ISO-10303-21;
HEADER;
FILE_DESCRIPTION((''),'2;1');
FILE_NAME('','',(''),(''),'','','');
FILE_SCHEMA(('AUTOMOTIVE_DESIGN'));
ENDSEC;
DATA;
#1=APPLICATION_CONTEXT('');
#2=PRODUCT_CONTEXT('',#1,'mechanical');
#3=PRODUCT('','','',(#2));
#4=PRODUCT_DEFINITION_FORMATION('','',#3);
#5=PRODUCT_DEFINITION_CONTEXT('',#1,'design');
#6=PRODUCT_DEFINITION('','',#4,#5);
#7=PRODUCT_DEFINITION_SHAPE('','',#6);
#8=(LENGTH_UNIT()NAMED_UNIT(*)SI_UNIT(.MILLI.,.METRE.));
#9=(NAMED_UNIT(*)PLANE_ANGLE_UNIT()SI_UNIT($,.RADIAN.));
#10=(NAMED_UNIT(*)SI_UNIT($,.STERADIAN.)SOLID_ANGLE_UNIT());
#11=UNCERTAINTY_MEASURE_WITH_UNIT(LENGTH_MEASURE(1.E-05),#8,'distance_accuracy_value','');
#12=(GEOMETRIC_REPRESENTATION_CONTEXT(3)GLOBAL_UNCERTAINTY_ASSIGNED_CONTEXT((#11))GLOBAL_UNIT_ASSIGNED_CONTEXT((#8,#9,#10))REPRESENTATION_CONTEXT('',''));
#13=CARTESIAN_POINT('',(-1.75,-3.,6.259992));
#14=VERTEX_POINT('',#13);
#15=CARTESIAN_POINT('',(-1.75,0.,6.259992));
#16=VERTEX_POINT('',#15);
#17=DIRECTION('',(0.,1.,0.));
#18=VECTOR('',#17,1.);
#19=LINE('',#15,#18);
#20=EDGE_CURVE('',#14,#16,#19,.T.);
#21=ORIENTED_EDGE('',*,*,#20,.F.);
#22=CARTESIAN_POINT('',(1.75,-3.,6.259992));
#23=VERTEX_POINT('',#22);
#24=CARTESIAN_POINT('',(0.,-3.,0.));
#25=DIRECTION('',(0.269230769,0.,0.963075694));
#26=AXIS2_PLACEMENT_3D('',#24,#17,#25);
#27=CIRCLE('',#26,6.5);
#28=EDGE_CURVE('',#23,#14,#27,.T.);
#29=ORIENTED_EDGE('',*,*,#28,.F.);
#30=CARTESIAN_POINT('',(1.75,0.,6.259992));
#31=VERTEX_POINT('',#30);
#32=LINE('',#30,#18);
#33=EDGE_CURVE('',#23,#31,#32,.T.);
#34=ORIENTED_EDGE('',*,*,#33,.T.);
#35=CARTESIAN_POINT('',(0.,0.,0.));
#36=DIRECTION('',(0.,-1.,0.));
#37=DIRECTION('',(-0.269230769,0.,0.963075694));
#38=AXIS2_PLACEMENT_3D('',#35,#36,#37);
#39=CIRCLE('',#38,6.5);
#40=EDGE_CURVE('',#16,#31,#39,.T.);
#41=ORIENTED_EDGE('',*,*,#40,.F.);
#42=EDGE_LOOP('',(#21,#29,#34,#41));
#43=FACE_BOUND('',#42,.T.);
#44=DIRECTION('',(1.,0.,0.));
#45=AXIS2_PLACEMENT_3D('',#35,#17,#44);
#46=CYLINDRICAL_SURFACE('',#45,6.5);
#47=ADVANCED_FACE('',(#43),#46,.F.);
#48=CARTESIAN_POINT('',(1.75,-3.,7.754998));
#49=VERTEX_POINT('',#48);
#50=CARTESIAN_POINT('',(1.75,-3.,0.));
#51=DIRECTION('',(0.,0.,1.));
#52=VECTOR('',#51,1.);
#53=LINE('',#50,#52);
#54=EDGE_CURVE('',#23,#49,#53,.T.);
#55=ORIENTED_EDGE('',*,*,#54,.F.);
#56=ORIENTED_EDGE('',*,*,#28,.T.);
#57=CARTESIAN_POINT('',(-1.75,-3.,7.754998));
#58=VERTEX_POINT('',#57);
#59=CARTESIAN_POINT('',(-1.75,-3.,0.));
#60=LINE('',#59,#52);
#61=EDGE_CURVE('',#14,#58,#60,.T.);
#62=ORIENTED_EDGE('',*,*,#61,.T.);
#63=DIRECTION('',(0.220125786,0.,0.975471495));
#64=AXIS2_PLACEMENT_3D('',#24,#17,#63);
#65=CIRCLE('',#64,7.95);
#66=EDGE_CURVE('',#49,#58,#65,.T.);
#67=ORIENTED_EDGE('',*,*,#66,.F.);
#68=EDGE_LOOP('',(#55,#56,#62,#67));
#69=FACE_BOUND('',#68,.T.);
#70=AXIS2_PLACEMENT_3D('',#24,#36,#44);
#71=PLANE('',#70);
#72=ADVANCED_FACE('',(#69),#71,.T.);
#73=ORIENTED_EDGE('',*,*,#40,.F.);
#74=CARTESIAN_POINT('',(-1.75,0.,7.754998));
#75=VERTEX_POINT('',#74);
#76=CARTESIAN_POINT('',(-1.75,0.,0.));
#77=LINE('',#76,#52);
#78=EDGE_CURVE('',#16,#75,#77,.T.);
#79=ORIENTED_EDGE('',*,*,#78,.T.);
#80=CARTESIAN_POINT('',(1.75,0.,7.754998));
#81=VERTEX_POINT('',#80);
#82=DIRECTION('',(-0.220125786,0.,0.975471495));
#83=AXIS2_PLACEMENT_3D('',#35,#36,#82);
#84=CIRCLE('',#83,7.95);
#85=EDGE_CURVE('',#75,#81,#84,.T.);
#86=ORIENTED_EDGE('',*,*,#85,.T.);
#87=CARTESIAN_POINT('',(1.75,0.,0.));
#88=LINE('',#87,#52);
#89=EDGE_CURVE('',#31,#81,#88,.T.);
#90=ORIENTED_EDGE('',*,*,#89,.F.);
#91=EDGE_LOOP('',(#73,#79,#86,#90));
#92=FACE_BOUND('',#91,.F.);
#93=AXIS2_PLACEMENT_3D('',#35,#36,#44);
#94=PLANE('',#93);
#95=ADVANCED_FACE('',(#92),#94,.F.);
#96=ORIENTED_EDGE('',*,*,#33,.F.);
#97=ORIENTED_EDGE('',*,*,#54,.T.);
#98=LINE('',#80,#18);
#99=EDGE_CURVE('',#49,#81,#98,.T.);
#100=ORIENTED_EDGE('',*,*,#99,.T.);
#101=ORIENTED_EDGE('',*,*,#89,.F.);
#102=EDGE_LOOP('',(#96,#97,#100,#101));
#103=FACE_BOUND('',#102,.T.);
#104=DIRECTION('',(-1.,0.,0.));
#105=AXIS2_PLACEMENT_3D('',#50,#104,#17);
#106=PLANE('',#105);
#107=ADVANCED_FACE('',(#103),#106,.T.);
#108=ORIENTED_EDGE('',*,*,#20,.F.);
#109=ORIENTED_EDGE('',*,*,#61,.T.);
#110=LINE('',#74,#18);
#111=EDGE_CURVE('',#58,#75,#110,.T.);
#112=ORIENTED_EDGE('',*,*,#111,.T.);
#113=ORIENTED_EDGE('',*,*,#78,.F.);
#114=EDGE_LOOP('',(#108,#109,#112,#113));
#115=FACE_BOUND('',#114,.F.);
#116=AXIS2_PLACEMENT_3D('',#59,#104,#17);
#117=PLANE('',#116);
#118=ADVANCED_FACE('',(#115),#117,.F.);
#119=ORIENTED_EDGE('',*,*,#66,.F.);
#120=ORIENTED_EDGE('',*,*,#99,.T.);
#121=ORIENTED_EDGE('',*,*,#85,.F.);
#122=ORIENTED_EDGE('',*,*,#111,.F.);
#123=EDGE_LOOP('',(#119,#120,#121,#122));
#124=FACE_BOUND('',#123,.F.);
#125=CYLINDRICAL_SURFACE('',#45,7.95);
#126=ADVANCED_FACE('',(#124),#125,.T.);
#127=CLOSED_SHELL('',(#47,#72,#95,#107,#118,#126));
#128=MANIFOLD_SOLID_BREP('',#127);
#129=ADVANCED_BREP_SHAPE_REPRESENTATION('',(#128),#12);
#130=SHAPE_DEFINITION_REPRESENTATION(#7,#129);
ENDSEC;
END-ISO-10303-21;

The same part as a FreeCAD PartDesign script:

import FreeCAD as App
import Part
import Sketcher

V = App.Vector


def add_polygon(sketch, points):
    """Adds a closed chain of lines whose ends are joined by coincident constraints."""
    first, n = sketch.GeometryCount, len(points)
    for a, b in zip(points, points[1:] + points[:1]):
        sketch.addGeometry(Part.LineSegment(App.Vector(*a, 0), App.Vector(*b, 0)), False)
    for i in range(n):
        sketch.addConstraint(Sketcher.Constraint("Coincident", first + i, 2, first + (i + 1) % n, 1))

doc = App.newDocument("Part")
body = doc.addObject("PartDesign::Body", "Body")

# Sketch on XZ plane
sketch1 = doc.addObject("Sketcher::SketchObject", "Sketch")
body.addObject(sketch1)
sketch1.AttachmentSupport = (doc.XZ_Plane, [""])
sketch1.MapMode = "FlatFace"
sketch1.addGeometry([
    Part.Circle(V(0, 0, 0), V(0, 0, 1), 8),
    Part.Circle(V(0, 0, 0), V(0, 0, 1), 6),
], False)
sketch1.addConstraint([
    Sketcher.Constraint("Coincident", 0, 3, -1, 1),
    Sketcher.Constraint("Coincident", 1, 3, -1, 1),
    Sketcher.Constraint("Diameter", 1, 13.0),
    Sketcher.Constraint("Diameter", 0, 15.9),
])
pad1 = doc.addObject("PartDesign::Pad", "Pad")
body.addObject(pad1)
pad1.Profile = sketch1
pad1.Length = 3

# Sketch on XY plane
sketch2 = doc.addObject("Sketcher::SketchObject", "Sketch001")
body.addObject(sketch2)
sketch2.AttachmentSupport = (doc.XY_Plane, [""])
sketch2.MapMode = "FlatFace"
add_polygon(sketch2, [(-1.8, 0), (-1.8, -3), (1.8, -3), (1.8, 0)])  # lines 0-3
sketch2.addConstraint([
    Sketcher.Constraint("Vertical", 0),
    Sketcher.Constraint("Horizontal", 1),
    Sketcher.Constraint("Vertical", 2),
    Sketcher.Constraint("Horizontal", 3),
    Sketcher.Constraint("Symmetric", 2, 2, 3, 2, -1, 1),
    Sketcher.Constraint("DistanceY", 0, 2, 0, 1, 3.0),
    Sketcher.Constraint("DistanceX", 1, 1, 1, 2, 3.5),
])
pocket1 = doc.addObject("PartDesign::Pocket", "Pocket")
body.addObject(pocket1)
pocket1.Profile = sketch2
pocket1.Type = "ThroughAll"
pocket1.Reversed = True

doc.recompute()
